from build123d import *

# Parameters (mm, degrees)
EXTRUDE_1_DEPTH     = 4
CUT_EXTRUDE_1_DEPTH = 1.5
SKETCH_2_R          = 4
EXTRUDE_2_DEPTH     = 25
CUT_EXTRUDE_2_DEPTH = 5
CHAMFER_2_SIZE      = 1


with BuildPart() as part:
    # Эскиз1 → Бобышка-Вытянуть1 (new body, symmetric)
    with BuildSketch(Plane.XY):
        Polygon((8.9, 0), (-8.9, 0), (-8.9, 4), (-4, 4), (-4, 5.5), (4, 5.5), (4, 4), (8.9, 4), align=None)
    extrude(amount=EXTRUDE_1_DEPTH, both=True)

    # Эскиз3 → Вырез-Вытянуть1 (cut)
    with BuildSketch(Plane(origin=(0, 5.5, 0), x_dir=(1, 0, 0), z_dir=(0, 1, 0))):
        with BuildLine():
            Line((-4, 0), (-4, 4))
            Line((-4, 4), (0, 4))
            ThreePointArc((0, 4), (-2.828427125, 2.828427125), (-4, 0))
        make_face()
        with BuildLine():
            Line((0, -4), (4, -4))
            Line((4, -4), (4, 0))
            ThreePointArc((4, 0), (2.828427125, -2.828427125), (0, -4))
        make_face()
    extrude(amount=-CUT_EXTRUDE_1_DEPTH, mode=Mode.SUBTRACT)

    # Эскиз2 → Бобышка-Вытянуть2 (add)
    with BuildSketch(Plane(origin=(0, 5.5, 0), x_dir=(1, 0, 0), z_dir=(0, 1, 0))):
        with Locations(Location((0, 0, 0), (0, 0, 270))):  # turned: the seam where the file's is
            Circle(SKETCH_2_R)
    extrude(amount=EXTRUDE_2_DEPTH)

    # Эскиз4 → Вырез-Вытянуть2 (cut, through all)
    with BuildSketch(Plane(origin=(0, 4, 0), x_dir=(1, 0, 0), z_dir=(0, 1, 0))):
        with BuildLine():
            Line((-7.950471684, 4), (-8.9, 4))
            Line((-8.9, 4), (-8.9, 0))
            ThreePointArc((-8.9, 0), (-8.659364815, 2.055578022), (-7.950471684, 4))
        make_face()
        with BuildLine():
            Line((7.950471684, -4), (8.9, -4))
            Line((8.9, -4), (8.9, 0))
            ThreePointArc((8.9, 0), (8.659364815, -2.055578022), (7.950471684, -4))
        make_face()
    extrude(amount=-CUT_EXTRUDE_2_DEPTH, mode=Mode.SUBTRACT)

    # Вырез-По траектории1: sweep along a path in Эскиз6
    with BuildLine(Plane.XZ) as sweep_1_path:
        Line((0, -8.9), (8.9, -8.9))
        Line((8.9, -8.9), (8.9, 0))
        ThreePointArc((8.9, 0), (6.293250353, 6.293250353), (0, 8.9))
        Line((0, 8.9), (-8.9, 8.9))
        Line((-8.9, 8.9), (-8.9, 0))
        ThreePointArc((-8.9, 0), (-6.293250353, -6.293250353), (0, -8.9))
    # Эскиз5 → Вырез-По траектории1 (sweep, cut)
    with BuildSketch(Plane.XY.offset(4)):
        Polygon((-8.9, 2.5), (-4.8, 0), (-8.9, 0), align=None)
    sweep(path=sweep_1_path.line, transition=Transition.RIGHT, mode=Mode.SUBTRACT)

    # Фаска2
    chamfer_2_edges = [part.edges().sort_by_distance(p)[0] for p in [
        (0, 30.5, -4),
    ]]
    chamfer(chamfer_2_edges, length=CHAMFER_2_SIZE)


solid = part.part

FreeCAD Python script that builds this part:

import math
import FreeCAD as App
import Part
import Sketcher


def edges_at(feature, points):
    """Names of the edges that pass closest to the given points."""
    edges = feature.Shape.Edges
    near = lambda p: min(range(len(edges)), key=lambda i: edges[i].distToShape(Part.Vertex(*p))[0])
    return sorted({f"Edge{near(p) + 1}" for p in points})

doc = App.newDocument("Part")
body = doc.addObject("PartDesign::Body", "Body")

# Sketch on XY plane
sketch1 = body.newObject("Sketcher::SketchObject", "Sketch")
sketch1.AttachmentSupport = (doc.getObject("XY_Plane"), [""])
sketch1.MapMode = "FlatFace"
sketch1.addGeometry(Part.LineSegment(App.Vector(-8.9, 0, 0), App.Vector(8.9, 0, 0)), False)
sketch1.addGeometry(Part.LineSegment(App.Vector(8.9, 0, 0), App.Vector(8.9, 4, 0)), False)
sketch1.addGeometry(Part.LineSegment(App.Vector(8.9, 4, 0), App.Vector(4, 4, 0)), False)
sketch1.addGeometry(Part.LineSegment(App.Vector(4, 4, 0), App.Vector(4, 5.5, 0)), False)
sketch1.addGeometry(Part.LineSegment(App.Vector(4, 5.5, 0), App.Vector(-4, 5.5, 0)), False)
sketch1.addGeometry(Part.LineSegment(App.Vector(-4, 5.5, 0), App.Vector(-4, 4, 0)), False)
sketch1.addGeometry(Part.LineSegment(App.Vector(-4, 4, 0), App.Vector(-8.9, 4, 0)), False)
sketch1.addGeometry(Part.LineSegment(App.Vector(-8.9, 4, 0), App.Vector(-8.9, 0, 0)), False)
sketch1.addConstraint(Sketcher.Constraint("Coincident", 0, 2, 1, 1))
sketch1.addConstraint(Sketcher.Constraint("Coincident", 1, 2, 2, 1))
sketch1.addConstraint(Sketcher.Constraint("Coincident", 2, 2, 3, 1))
sketch1.addConstraint(Sketcher.Constraint("Coincident", 3, 2, 4, 1))
sketch1.addConstraint(Sketcher.Constraint("Coincident", 4, 2, 5, 1))
sketch1.addConstraint(Sketcher.Constraint("Coincident", 5, 2, 6, 1))
sketch1.addConstraint(Sketcher.Constraint("Coincident", 6, 2, 7, 1))
sketch1.addConstraint(Sketcher.Constraint("Coincident", 7, 2, 0, 1))
sketch1.addConstraint(Sketcher.Constraint("Horizontal", 0))
sketch1.addConstraint(Sketcher.Constraint("Vertical", 1))
sketch1.addConstraint(Sketcher.Constraint("Horizontal", 2))
sketch1.addConstraint(Sketcher.Constraint("Vertical", 3))
sketch1.addConstraint(Sketcher.Constraint("Horizontal", 4))
sketch1.addConstraint(Sketcher.Constraint("Vertical", 5))
sketch1.addConstraint(Sketcher.Constraint("Horizontal", 6))
sketch1.addConstraint(Sketcher.Constraint("Vertical", 7))
sketch1.addConstraint(Sketcher.Constraint("Symmetric", 0, 2, 7, 2, -1, 1))
sketch1.addConstraint(Sketcher.Constraint("Symmetric", 2, 2, 5, 2, -2))
sketch1.addConstraint(Sketcher.Constraint("DistanceX", 4, 2, 4, 1, 8.0))
sketch1.addConstraint(Sketcher.Constraint("DistanceY", 1, 1, 1, 2, 4.0))
sketch1.addConstraint(Sketcher.Constraint("DistanceX", 0, 1, 0, 2, 17.8))
sketch1.addConstraint(Sketcher.Constraint("DistanceY", 3, 1, 3, 2, 1.5))
pad1 = body.newObject("PartDesign::Pad", "Pad")
pad1.Profile = sketch1
pad1.Length = 8
pad1.Midplane = True

# Sketch on XZ plane
sketch2 = body.newObject("Sketcher::SketchObject", "Sketch001")
sketch2.AttachmentSupport = (doc.getObject("XZ_Plane"), [""])
sketch2.MapMode = "FlatFace"
sketch2.AttachmentOffset = App.Placement(App.Vector(0, 0, -5.5), App.Rotation())
sketch2.addGeometry(Part.LineSegment(App.Vector(-4, -4, 0), App.Vector(-4, 0, 0)), False)
sketch2.addGeometry(Part.ArcOfCircle(Part.Circle(App.Vector(0, 0, 0), App.Vector(0, 0, 1), 4), math.radians(180), math.radians(270)), False)
sketch2.addGeometry(Part.LineSegment(App.Vector(0, -4, 0), App.Vector(-4, -4, 0)), False)
sketch2.addGeometry(Part.LineSegment(App.Vector(0, 4, 0), App.Vector(4, 4, 0)), False)
sketch2.addGeometry(Part.LineSegment(App.Vector(4, 4, 0), App.Vector(4, 0, 0)), False)
sketch2.addGeometry(Part.ArcOfCircle(Part.Circle(App.Vector(0, 0, 0), App.Vector(0, 0, 1), 4), math.radians(0), math.radians(90)), False)
sketch2.addConstraint(Sketcher.Constraint("Tangent", 0, 2, 1, 1))
sketch2.addConstraint(Sketcher.Constraint("Tangent", 1, 2, 2, 1))
sketch2.addConstraint(Sketcher.Constraint("Coincident", 2, 2, 0, 1))
sketch2.addConstraint(Sketcher.Constraint("Coincident", 3, 2, 4, 1))
sketch2.addConstraint(Sketcher.Constraint("Tangent", 4, 2, 5, 1))
sketch2.addConstraint(Sketcher.Constraint("Tangent", 5, 2, 3, 1))
sketch2.addConstraint(Sketcher.Constraint("Vertical", 0))
sketch2.addConstraint(Sketcher.Constraint("Horizontal", 2))
sketch2.addConstraint(Sketcher.Constraint("Horizontal", 3))
sketch2.addConstraint(Sketcher.Constraint("Vertical", 4))
sketch2.addConstraint(Sketcher.Constraint("Coincident", 1, 3, -1, 1))
sketch2.addConstraint(Sketcher.Constraint("Coincident", 5, 3, -1, 1))
sketch2.addConstraint(Sketcher.Constraint("Equal", 1, 5))
sketch2.addConstraint(Sketcher.Constraint("Radius", 1, 4.0))
pocket1 = body.newObject("PartDesign::Pocket", "Pocket")
pocket1.Profile = sketch2
pocket1.Length = 1.5
pocket1.Reversed = True

# Sketch on XZ plane
sketch3 = body.newObject("Sketcher::SketchObject", "Sketch002")
sketch3.AttachmentSupport = (doc.getObject("XZ_Plane"), [""])
sketch3.MapMode = "FlatFace"
sketch3.AttachmentOffset = App.Placement(App.Vector(0, 0, -5.5), App.Rotation())
sketch3.addGeometry(Part.Circle(App.Vector(0, 0, 0), App.Vector(0, 0, 1), 4), False)
sketch3.addConstraint(Sketcher.Constraint("Coincident", 0, 3, -1, 1))
sketch3.addConstraint(Sketcher.Constraint("Diameter", 0, 8.0))
pad2 = body.newObject("PartDesign::Pad", "Pad001")
pad2.Profile = sketch3
pad2.Length = 25
pad2.Reversed = True

# Sketch on XZ plane
sketch4 = body.newObject("Sketcher::SketchObject", "Sketch003")
sketch4.AttachmentSupport = (doc.getObject("XZ_Plane"), [""])
sketch4.MapMode = "FlatFace"
sketch4.AttachmentOffset = App.Placement(App.Vector(0, 0, -4), App.Rotation())
sketch4.addGeometry(Part.LineSegment(App.Vector(-8, -4, 0), App.Vector(-8.9, -4, 0)), False)
sketch4.addGeometry(Part.LineSegment(App.Vector(-8.9, -4, 0), App.Vector(-8.9, 0, 0)), False)
sketch4.addGeometry(Part.ArcOfCircle(Part.Circle(App.Vector(0, 0, 0), App.Vector(0, 0, 1), 8.9), math.radians(180), math.radians(207)), False)
sketch4.addGeometry(Part.LineSegment(App.Vector(8, 4, 0), App.Vector(8.9, 4, 0)), False)
sketch4.addGeometry(Part.LineSegment(App.Vector(8.9, 4, 0), App.Vector(8.9, 0, 0)), False)
sketch4.addGeometry(Part.ArcOfCircle(Part.Circle(App.Vector(0, 0, 0), App.Vector(0, 0, 1), 8.9), math.radians(0), math.radians(27)), False)
sketch4.addConstraint(Sketcher.Constraint("Coincident", 0, 2, 1, 1))
sketch4.addConstraint(Sketcher.Constraint("Tangent", 1, 2, 2, 1))
sketch4.addConstraint(Sketcher.Constraint("Coincident", 2, 2, 0, 1))
sketch4.addConstraint(Sketcher.Constraint("Coincident", 3, 2, 4, 1))
sketch4.addConstraint(Sketcher.Constraint("Tangent", 4, 2, 5, 1))
sketch4.addConstraint(Sketcher.Constraint("Coincident", 5, 2, 3, 1))
sketch4.addConstraint(Sketcher.Constraint("Horizontal", 0))
sketch4.addConstraint(Sketcher.Constraint("Vertical", 1))
sketch4.addConstraint(Sketcher.Constraint("Horizontal", 3))
sketch4.addConstraint(Sketcher.Constraint("Vertical", 4))
sketch4.addConstraint(Sketcher.Constraint("Coincident", 2, 3, -1, 1))
sketch4.addConstraint(Sketcher.Constraint("Coincident", 5, 3, -1, 1))
sketch4.addConstraint(Sketcher.Constraint("Equal", 2, 5))
sketch4.addConstraint(Sketcher.Constraint("Equal", 0, 3))
sketch4.addConstraint(Sketcher.Constraint("Radius", 2, 8.9))
sketch4.addConstraint(Sketcher.Constraint("DistanceY", 1, 1, 1, 2, 4.0))
pocket2 = body.newObject("PartDesign::Pocket", "Pocket001")
pocket2.Profile = sketch4
pocket2.Type = "ThroughAll"
pocket2.Reversed = True

# Sketch on XY plane
sketch5 = body.newObject("Sketcher::SketchObject", "Sketch004")
sketch5.AttachmentSupport = (doc.getObject("XY_Plane"), [""])
sketch5.MapMode = "FlatFace"
sketch5.AttachmentOffset = App.Placement(App.Vector(0, 0, 4), App.Rotation())
sketch5.addGeometry(Part.LineSegment(App.Vector(-4.8, 0, 0), App.Vector(-8.9, 2.5, 0)), False)
sketch5.addGeometry(Part.LineSegment(App.Vector(-8.9, 2.5, 0), App.Vector(-8.9, 0, 0)), False)
sketch5.addGeometry(Part.LineSegment(App.Vector(-8.9, 0, 0), App.Vector(-4.8, 0, 0)), False)
sketch5.addConstraint(Sketcher.Constraint("Coincident", 0, 2, 1, 1))
sketch5.addConstraint(Sketcher.Constraint("Coincident", 1, 2, 2, 1))
sketch5.addConstraint(Sketcher.Constraint("Coincident", 2, 2, 0, 1))
sketch5.addConstraint(Sketcher.Constraint("Vertical", 1))
sketch5.addConstraint(Sketcher.Constraint("Horizontal", 2))
sketch5.addConstraint(Sketcher.Constraint("PointOnObject", 1, 2, -1))
sketch5.addConstraint(Sketcher.Constraint("DistanceX", 2, 1, 2, 2, 4.1))
sketch5.addConstraint(Sketcher.Constraint("DistanceY", 1, 2, 1, 1, 2.5))
sketch5.addConstraint(Sketcher.Constraint("DistanceX", 0, 2, -1, 1, 8.9))

# Sketch on XZ plane
sketch6 = body.newObject("Sketcher::SketchObject", "Sketch005")
sketch6.AttachmentSupport = (doc.getObject("XZ_Plane"), [""])
sketch6.MapMode = "FlatFace"
sketch6.addGeometry(Part.LineSegment(App.Vector(0, -9, 0), App.Vector(9, -9, 0)), False)
sketch6.addGeometry(Part.LineSegment(App.Vector(9, -9, 0), App.Vector(9, 0, 0)), False)
sketch6.addGeometry(Part.ArcOfCircle(Part.Circle(App.Vector(0, 0, 0), App.Vector(0, 0, 1), 9), math.radians(0), math.radians(90)), False)
sketch6.addGeometry(Part.LineSegment(App.Vector(0, 9, 0), App.Vector(-9, 9, 0)), False)
sketch6.addGeometry(Part.LineSegment(App.Vector(-9, 9, 0), App.Vector(-9, 0, 0)), False)
sketch6.addGeometry(Part.ArcOfCircle(Part.Circle(App.Vector(0, 0, 0), App.Vector(0, 0, 1), 9), math.radians(180), math.radians(270)), False)
sketch6.addConstraint(Sketcher.Constraint("Coincident", 0, 2, 1, 1))
sketch6.addConstraint(Sketcher.Constraint("Tangent", 1, 2, 2, 1))
sketch6.addConstraint(Sketcher.Constraint("Tangent", 2, 2, 3, 1))
sketch6.addConstraint(Sketcher.Constraint("Coincident", 3, 2, 4, 1))
sketch6.addConstraint(Sketcher.Constraint("Tangent", 4, 2, 5, 1))
sketch6.addConstraint(Sketcher.Constraint("Tangent", 5, 2, 0, 1))
sketch6.addConstraint(Sketcher.Constraint("Horizontal", 0))
sketch6.addConstraint(Sketcher.Constraint("Vertical", 1))
sketch6.addConstraint(Sketcher.Constraint("Horizontal", 3))
sketch6.addConstraint(Sketcher.Constraint("Vertical", 4))
sketch6.addConstraint(Sketcher.Constraint("Coincident", 2, 3, -1, 1))
sketch6.addConstraint(Sketcher.Constraint("Coincident", 5, 3, -1, 1))
sketch6.addConstraint(Sketcher.Constraint("Equal", 2, 5))
sketch6.addConstraint(Sketcher.Constraint("Radius", 2, 8.9))
doc.recompute()

subtractivepipe = body.newObject("PartDesign::SubtractivePipe", "SubtractivePipe")
subtractivepipe.Profile = sketch5
subtractivepipe.Spine = (sketch6, ["Edge1", "Edge2", "Edge3", "Edge4", "Edge5", "Edge6"])
subtractivepipe.Transition = "Right corner"
doc.recompute()

chamfer = body.newObject("PartDesign::Chamfer", "Chamfer")
chamfer.Base = (subtractivepipe, edges_at(subtractivepipe, [(0, 30.5, -4)]))
chamfer.Size = 1

doc.recompute()
